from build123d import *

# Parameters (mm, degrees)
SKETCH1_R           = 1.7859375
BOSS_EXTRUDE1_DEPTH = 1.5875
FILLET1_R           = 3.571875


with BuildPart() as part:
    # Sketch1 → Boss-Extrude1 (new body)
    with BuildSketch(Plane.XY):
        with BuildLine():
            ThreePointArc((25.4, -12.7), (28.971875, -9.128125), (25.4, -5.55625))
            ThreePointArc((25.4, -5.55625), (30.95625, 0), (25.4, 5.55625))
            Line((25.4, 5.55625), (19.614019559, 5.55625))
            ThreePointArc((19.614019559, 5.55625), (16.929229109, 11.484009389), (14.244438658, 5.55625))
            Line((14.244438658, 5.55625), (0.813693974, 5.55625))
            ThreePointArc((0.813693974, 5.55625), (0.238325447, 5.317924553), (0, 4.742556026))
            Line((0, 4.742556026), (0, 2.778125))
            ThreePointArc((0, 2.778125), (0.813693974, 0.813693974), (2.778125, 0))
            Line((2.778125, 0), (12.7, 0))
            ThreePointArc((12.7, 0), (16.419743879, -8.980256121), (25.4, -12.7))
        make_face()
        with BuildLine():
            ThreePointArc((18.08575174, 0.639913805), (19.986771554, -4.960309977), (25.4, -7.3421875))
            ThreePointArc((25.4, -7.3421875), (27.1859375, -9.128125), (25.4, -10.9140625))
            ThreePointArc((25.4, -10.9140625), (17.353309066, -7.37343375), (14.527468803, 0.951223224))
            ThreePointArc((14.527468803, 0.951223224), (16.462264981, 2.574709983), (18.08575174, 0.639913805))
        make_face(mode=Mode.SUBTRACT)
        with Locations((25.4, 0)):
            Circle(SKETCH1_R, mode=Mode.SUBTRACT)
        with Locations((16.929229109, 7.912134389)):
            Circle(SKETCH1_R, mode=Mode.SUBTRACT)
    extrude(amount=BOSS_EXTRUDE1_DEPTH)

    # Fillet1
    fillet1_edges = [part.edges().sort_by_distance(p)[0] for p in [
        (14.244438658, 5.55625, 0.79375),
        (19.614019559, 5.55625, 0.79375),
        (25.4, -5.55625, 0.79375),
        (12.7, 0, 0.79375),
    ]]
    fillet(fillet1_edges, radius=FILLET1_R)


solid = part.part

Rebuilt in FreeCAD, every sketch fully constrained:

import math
import FreeCAD as App
import Part
import Sketcher
Q = App.Units.Quantity


def edges_at(feature, points):
    """Names of the edges that pass closest to the given points."""
    edges = feature.Shape.Edges
    near = lambda p: min(range(len(edges)), key=lambda i: edges[i].distToShape(Part.Vertex(*p))[0])
    return sorted({f"Edge{near(p) + 1}" for p in points})

doc = App.newDocument("Part")
params = doc.addObject("Spreadsheet::Sheet", "Params")
for row, (alias, value) in enumerate([
    ("sketch1_radius", "0.5 in"),
    ("sketch1_diameter", "0.140625 in"),
    ("sketch1_radius2", "0.140625 in"),
    ("sketch1_radius3", "0.109375 in"),
    ("pad1_length", "0.0625 in"),
    ("fillet_radius", "0.140625 in"),
], start=1):
    params.set(f"A{row}", alias)
    params.set(f"B{row}", "=" + value)
    params.setAlias(f"B{row}", alias)

body = doc.addObject("PartDesign::Body", "Body")

# Sketch on XY plane
sketch1 = body.newObject("Sketcher::SketchObject", "Sketch")
sketch1.AttachmentSupport = (doc.getObject("XY_Plane"), [""])
sketch1.MapMode = "FlatFace"
sketch1.addGeometry(Part.ArcOfCircle(Part.Circle(App.Vector(25.4, -9.1, 0), App.Vector(0, 0, 1), 3.6), math.radians(-90), math.radians(90)), False)
sketch1.addGeometry(Part.ArcOfCircle(Part.Circle(App.Vector(25.4, 0, 0), App.Vector(0, 0, 1), 5.6), math.radians(-90), math.radians(90)), False)
sketch1.addGeometry(Part.LineSegment(App.Vector(25.4, 5.6, 0), App.Vector(19.6, 5.6, 0)), False)
sketch1.addGeometry(Part.ArcOfCircle(Part.Circle(App.Vector(16.9, 7.9, 0), App.Vector(0, 0, 1), 3.6), math.radians(-41), math.radians(221)), False)
sketch1.addGeometry(Part.LineSegment(App.Vector(14.2, 5.6, 0), App.Vector(0.8, 5.6, 0)), False)
sketch1.addGeometry(Part.ArcOfCircle(Part.Circle(App.Vector(0.8, 4.7, 0), App.Vector(0, 0, 1), 0.8), math.radians(90), math.radians(180)), False)
sketch1.addGeometry(Part.LineSegment(App.Vector(0, 4.7, 0), App.Vector(0, 2.8, 0)), False)
sketch1.addGeometry(Part.ArcOfCircle(Part.Circle(App.Vector(2.8, 2.8, 0), App.Vector(0, 0, 1), 2.8), math.radians(-180), math.radians(-90)), False)
sketch1.addGeometry(Part.LineSegment(App.Vector(2.8, 0, 0), App.Vector(12.7, 0, 0)), False)
sketch1.addGeometry(Part.ArcOfCircle(Part.Circle(App.Vector(25.4, 0, 0), App.Vector(0, 0, 1), 12.7), math.radians(180), math.radians(270)), False)
sketch1.addGeometry(Part.ArcOfCircle(Part.Circle(App.Vector(16.3, 0.8, 0), App.Vector(0, 0, 1), 1.8), math.radians(-5), math.radians(175)), False)
sketch1.addGeometry(Part.ArcOfCircle(Part.Circle(App.Vector(25.4, 0, 0), App.Vector(0, 0, 1), 7.3), math.radians(175), math.radians(270)), False)
sketch1.addGeometry(Part.ArcOfCircle(Part.Circle(App.Vector(25.4, -9.1, 0), App.Vector(0, 0, 1), 1.8), math.radians(-90), math.radians(90)), False)
sketch1.addGeometry(Part.ArcOfCircle(Part.Circle(App.Vector(25.4, 0, 0), App.Vector(0, 0, 1), 10.9), math.radians(175), math.radians(270)), False)
sketch1.addGeometry(Part.Circle(App.Vector(16.9, 7.9, 0), App.Vector(0, 0, 1), 1.8), False)
sketch1.addGeometry(Part.Circle(App.Vector(25.4, 0, 0), App.Vector(0, 0, 1), 1.8), False)
sketch1.addConstraint(Sketcher.Constraint("Tangent", 0, 2, 1, 1))
sketch1.addConstraint(Sketcher.Constraint("Tangent", 1, 2, 2, 1))
sketch1.addConstraint(Sketcher.Constraint("Coincident", 2, 2, 3, 1))
sketch1.addConstraint(Sketcher.Constraint("Coincident", 3, 2, 4, 1))
sketch1.addConstraint(Sketcher.Constraint("Tangent", 4, 2, 5, 1))
sketch1.addConstraint(Sketcher.Constraint("Tangent", 5, 2, 6, 1))
sketch1.addConstraint(Sketcher.Constraint("Tangent", 6, 2, 7, 1))
sketch1.addConstraint(Sketcher.Constraint("Tangent", 7, 2, 8, 1))
sketch1.addConstraint(Sketcher.Constraint("Coincident", 8, 2, 9, 1))
sketch1.addConstraint(Sketcher.Constraint("Tangent", 9, 2, 0, 1))
sketch1.addConstraint(Sketcher.Constraint("Tangent", 10, 1, 11, 1))
sketch1.addConstraint(Sketcher.Constraint("Tangent", 11, 2, 12, 2))
sketch1.addConstraint(Sketcher.Constraint("Tangent", 12, 1, 13, 2))
sketch1.addConstraint(Sketcher.Constraint("Tangent", 13, 1, 10, 2))
sketch1.addConstraint(Sketcher.Constraint("Horizontal", 2))
sketch1.addConstraint(Sketcher.Constraint("Horizontal", 4))
sketch1.addConstraint(Sketcher.Constraint("Vertical", 6))
sketch1.addConstraint(Sketcher.Constraint("Horizontal", 8))
sketch1.addConstraint(Sketcher.Constraint("Coincident", 9, 3, 1, 3))
sketch1.addConstraint(Sketcher.Constraint("Coincident", 11, 3, 1, 3))
sketch1.addConstraint(Sketcher.Constraint("Coincident", 12, 3, 0, 3))
sketch1.addConstraint(Sketcher.Constraint("Coincident", 13, 3, 1, 3))
sketch1.addConstraint(Sketcher.Constraint("Coincident", 14, 3, 3, 3))
sketch1.addConstraint(Sketcher.Constraint("Coincident", 15, 3, 1, 3))
sketch1.addConstraint(Sketcher.Constraint("Equal", 0, 3))
sketch1.addConstraint(Sketcher.Constraint("Equal", 12, 14))
sketch1.addConstraint(Sketcher.Constraint("Equal", 14, 15))
sketch1.addConstraint(Sketcher.Constraint("Symmetric", 0, 2, 1, 2, -1))
sketch1.addConstraint(Sketcher.Constraint("PointOnObject", 5, 2, -2))
sketch1.addConstraint(Sketcher.Constraint("PointOnObject", 7, 2, -1))
sketch1.addConstraint(Sketcher.Constraint("Horizontal", 2, 2, 3, 2))
sketch1.addConstraint(Sketcher.Constraint("Radius", 9, Q("0.5 in")))
sketch1.addConstraint(Sketcher.Constraint("Diameter", 14, Q("0.140625 in")))
sketch1.addConstraint(Sketcher.Constraint("DistanceX", -1, 1, 0, 3, Q("1 in")))
sketch1.addConstraint(Sketcher.Constraint("Radius", 0, Q("0.140625 in")))
sketch1.addConstraint(Sketcher.Constraint("Radius", 7, Q("0.109375 in")))
sketch1.addConstraint(Sketcher.Constraint("Radius", 5, Q("0.813694 mm")))
sketch1.addConstraint(Sketcher.Constraint("DistanceX", 2, 2, 2, 1, Q("5.78598 mm")))
sketch1.addConstraint(Sketcher.Constraint("DistanceX", 4, 2, 4, 1, Q("13.430745 mm")))
sketch1.addConstraint(Sketcher.Constraint("DistanceX", -1, 1, 10, 3, Q("16.30661 mm")))
sketch1.setExpression("Constraints[31]", "Params.sketch1_radius")
sketch1.setExpression("Constraints[32]", "Params.sketch1_diameter")
sketch1.setExpression("Constraints[34]", "Params.sketch1_radius2")
sketch1.setExpression("Constraints[35]", "Params.sketch1_radius3")
pad1 = body.newObject("PartDesign::Pad", "Pad")
pad1.Profile = sketch1
pad1.setExpression("Length", "Params.pad1_length")
doc.recompute()

fillet = body.newObject("PartDesign::Fillet", "Fillet")
fillet.Base = (pad1, edges_at(pad1, [
    (14.244, 5.556, 0.794),
    (19.614, 5.556, 0.794),
    (25.4, -5.556, 0.794),
    (12.7, 0, 0.794),
]))
fillet.setExpression("Radius", "Params.fillet_radius")

doc.recompute()
